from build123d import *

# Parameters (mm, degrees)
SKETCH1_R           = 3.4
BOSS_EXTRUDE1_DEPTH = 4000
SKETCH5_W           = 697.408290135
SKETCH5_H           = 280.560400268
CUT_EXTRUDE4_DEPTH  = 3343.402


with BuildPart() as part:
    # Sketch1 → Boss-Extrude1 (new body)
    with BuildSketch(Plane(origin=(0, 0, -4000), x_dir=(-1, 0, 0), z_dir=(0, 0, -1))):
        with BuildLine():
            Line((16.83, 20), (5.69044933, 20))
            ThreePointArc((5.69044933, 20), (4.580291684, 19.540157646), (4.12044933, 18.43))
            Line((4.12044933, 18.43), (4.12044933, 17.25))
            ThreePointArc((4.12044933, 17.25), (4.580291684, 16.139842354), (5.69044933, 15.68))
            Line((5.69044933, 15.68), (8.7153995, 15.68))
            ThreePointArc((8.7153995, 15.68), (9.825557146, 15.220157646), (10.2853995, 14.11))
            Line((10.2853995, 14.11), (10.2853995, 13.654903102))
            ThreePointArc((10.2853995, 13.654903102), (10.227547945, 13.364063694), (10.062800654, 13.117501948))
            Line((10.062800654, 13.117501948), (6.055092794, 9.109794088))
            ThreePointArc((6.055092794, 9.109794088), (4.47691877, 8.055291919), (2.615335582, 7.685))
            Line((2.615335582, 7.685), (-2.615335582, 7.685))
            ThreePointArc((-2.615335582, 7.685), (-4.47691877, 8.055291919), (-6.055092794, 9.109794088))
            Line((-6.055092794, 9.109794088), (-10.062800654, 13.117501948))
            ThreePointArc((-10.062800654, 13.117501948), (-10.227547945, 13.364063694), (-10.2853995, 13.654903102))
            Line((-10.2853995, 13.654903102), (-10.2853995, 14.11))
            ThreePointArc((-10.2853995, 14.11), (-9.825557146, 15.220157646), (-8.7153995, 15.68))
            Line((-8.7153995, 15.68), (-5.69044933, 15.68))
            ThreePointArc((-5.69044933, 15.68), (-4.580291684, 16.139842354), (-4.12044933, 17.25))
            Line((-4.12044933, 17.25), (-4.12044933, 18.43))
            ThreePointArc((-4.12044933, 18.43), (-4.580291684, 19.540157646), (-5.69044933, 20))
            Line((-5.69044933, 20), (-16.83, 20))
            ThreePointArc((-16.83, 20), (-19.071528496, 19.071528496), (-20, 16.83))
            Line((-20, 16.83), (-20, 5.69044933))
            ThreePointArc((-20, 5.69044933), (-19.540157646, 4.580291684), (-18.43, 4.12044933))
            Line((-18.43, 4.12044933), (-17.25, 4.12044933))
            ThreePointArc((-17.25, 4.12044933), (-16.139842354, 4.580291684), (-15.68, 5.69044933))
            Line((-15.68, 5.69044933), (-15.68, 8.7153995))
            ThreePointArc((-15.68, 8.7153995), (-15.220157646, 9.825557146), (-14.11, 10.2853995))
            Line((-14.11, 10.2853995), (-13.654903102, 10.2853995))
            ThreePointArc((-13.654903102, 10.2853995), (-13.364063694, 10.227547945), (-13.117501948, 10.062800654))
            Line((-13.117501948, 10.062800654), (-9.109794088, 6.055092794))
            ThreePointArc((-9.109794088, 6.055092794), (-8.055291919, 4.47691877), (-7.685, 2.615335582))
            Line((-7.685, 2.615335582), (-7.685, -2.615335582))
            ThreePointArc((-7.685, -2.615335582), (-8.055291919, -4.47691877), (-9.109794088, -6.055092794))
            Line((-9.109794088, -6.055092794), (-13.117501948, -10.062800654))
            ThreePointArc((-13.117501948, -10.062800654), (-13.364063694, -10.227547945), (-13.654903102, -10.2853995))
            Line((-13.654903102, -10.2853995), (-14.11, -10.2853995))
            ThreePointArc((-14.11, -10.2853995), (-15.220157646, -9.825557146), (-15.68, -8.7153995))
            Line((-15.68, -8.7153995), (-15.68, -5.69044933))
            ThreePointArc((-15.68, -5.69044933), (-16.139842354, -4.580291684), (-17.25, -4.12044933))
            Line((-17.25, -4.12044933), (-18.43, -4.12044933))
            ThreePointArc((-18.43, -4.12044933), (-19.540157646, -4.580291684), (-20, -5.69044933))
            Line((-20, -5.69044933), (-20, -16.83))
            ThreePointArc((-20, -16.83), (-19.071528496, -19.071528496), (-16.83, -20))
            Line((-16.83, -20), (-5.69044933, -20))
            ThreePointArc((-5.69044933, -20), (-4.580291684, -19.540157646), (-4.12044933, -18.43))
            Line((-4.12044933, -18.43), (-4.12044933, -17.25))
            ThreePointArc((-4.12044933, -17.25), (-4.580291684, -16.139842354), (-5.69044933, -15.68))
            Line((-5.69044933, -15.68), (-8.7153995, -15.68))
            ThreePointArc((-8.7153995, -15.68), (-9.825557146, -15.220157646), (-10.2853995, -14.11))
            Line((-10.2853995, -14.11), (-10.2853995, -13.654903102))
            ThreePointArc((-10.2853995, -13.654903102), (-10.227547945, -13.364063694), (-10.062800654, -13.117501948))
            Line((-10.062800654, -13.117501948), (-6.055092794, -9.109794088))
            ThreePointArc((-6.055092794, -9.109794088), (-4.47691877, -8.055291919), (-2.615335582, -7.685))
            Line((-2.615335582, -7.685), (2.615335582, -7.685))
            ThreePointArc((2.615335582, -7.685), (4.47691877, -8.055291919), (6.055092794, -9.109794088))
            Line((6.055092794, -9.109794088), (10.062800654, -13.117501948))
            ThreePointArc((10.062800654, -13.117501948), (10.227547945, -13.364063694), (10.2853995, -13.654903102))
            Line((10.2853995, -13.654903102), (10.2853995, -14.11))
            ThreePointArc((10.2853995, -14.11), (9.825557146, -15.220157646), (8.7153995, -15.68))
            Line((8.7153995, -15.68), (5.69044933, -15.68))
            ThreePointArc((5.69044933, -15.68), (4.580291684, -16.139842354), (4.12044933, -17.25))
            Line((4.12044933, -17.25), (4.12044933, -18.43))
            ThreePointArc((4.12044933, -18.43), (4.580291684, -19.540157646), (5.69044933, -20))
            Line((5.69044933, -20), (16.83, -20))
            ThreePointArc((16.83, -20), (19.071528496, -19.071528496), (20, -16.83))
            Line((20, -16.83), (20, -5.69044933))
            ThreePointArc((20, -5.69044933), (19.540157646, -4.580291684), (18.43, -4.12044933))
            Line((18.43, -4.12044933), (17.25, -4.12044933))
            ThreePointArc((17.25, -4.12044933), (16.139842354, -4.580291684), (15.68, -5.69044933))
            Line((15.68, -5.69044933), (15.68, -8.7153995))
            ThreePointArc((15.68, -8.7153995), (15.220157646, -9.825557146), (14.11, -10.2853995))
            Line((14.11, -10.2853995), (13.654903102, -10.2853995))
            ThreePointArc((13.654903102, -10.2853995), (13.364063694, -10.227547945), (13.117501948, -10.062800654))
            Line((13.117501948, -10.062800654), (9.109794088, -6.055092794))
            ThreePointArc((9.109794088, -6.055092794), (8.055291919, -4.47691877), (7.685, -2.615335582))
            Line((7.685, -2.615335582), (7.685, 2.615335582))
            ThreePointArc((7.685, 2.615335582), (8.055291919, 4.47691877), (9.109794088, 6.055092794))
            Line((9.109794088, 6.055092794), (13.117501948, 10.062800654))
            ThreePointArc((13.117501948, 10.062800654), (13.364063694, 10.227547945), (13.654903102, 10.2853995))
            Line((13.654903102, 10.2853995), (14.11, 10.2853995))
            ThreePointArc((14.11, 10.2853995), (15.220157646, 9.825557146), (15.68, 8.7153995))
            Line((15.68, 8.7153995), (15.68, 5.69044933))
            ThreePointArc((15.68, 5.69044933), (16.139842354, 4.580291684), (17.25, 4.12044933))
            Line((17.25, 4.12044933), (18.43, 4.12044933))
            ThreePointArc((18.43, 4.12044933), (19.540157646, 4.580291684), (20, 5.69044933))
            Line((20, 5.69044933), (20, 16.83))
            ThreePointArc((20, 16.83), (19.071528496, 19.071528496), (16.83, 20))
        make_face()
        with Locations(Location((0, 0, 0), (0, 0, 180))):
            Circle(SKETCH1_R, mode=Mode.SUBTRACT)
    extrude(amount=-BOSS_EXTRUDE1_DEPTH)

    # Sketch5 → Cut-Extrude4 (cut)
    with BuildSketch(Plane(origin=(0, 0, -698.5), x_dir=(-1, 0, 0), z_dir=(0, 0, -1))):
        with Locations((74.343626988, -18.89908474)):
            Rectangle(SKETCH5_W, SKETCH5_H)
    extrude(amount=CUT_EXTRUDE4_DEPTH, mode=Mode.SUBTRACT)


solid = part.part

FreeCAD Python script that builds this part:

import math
import FreeCAD as App
import Part
import Sketcher
Q = App.Units.Quantity

doc = App.newDocument("Part")
body = doc.addObject("PartDesign::Body", "Body")

sketch1 = body.newObject("Sketcher::SketchObject", "Sketch")
sketch1.AttachmentSupport = (doc.getObject("XY_Plane"), [""])
sketch1.MapMode = "FlatFace"
sketch1.AttachmentOffset = App.Placement(App.Vector(0, 0, -4000), App.Rotation())
sketch1.addGeometry([
    Part.LineSegment(App.Vector(-16.83, 20, 0), App.Vector(-5.69, 20, 0)),
    Part.ArcOfCircle(Part.Circle(App.Vector(-5.69, 18.43, 0), App.Vector(0, 0, 1), 1.57), math.radians(0), math.radians(90)),
    Part.LineSegment(App.Vector(-4.12, 18.43, 0), App.Vector(-4.12, 17.25, 0)),
    Part.ArcOfCircle(Part.Circle(App.Vector(-5.69, 17.25, 0), App.Vector(0, 0, 1), 1.57), math.radians(-90), math.radians(0)),
    Part.LineSegment(App.Vector(-5.69, 15.68, 0), App.Vector(-8.72, 15.68, 0)),
    Part.ArcOfCircle(Part.Circle(App.Vector(-8.72, 14.11, 0), App.Vector(0, 0, 1), 1.57), math.radians(90), math.radians(180)),
    Part.LineSegment(App.Vector(-10.29, 14.11, 0), App.Vector(-10.29, 13.65, 0)),
    Part.ArcOfCircle(Part.Circle(App.Vector(-9.53, 13.65, 0), App.Vector(0, 0, 1), 0.76), math.radians(180), math.radians(225)),
    Part.LineSegment(App.Vector(-10.06, 13.12, 0), App.Vector(-6.06, 9.11, 0)),
    Part.ArcOfCircle(Part.Circle(App.Vector(-2.62, 12.55, 0), App.Vector(0, 0, 1), 4.86), math.radians(-135), math.radians(-90)),
    Part.LineSegment(App.Vector(-2.62, 7.68, 0), App.Vector(2.62, 7.68, 0)),
    Part.ArcOfCircle(Part.Circle(App.Vector(2.62, 12.55, 0), App.Vector(0, 0, 1), 4.86), math.radians(-90), math.radians(-45)),
    Part.LineSegment(App.Vector(6.06, 9.11, 0), App.Vector(10.06, 13.12, 0)),
    Part.ArcOfCircle(Part.Circle(App.Vector(9.53, 13.65, 0), App.Vector(0, 0, 1), 0.76), math.radians(-45), math.radians(0)),
    Part.LineSegment(App.Vector(10.29, 13.65, 0), App.Vector(10.29, 14.11, 0)),
    Part.ArcOfCircle(Part.Circle(App.Vector(8.72, 14.11, 0), App.Vector(0, 0, 1), 1.57), math.radians(0), math.radians(90)),
    Part.LineSegment(App.Vector(8.72, 15.68, 0), App.Vector(5.69, 15.68, 0)),
    Part.ArcOfCircle(Part.Circle(App.Vector(5.69, 17.25, 0), App.Vector(0, 0, 1), 1.57), math.radians(-180), math.radians(-90)),
    Part.LineSegment(App.Vector(4.12, 17.25, 0), App.Vector(4.12, 18.43, 0)),
    Part.ArcOfCircle(Part.Circle(App.Vector(5.69, 18.43, 0), App.Vector(0, 0, 1), 1.57), math.radians(90), math.radians(180)),
    Part.LineSegment(App.Vector(5.69, 20, 0), App.Vector(16.83, 20, 0)),
    Part.ArcOfCircle(Part.Circle(App.Vector(16.83, 16.83, 0), App.Vector(0, 0, 1), 3.17), math.radians(0), math.radians(90)),
    Part.LineSegment(App.Vector(20, 16.83, 0), App.Vector(20, 5.69, 0)),
    Part.ArcOfCircle(Part.Circle(App.Vector(18.43, 5.69, 0), App.Vector(0, 0, 1), 1.57), math.radians(-90), math.radians(0)),
    Part.LineSegment(App.Vector(18.43, 4.12, 0), App.Vector(17.25, 4.12, 0)),
    Part.ArcOfCircle(Part.Circle(App.Vector(17.25, 5.69, 0), App.Vector(0, 0, 1), 1.57), math.radians(-180), math.radians(-90)),
    Part.LineSegment(App.Vector(15.68, 5.69, 0), App.Vector(15.68, 8.72, 0)),
    Part.ArcOfCircle(Part.Circle(App.Vector(14.11, 8.72, 0), App.Vector(0, 0, 1), 1.57), math.radians(0), math.radians(90)),
    Part.LineSegment(App.Vector(14.11, 10.29, 0), App.Vector(13.65, 10.29, 0)),
    Part.ArcOfCircle(Part.Circle(App.Vector(13.65, 9.53, 0), App.Vector(0, 0, 1), 0.76), math.radians(90), math.radians(135)),
    Part.LineSegment(App.Vector(13.12, 10.06, 0), App.Vector(9.11, 6.06, 0)),
    Part.ArcOfCircle(Part.Circle(App.Vector(12.55, 2.62, 0), App.Vector(0, 0, 1), 4.86), math.radians(135), math.radians(180)),
    Part.LineSegment(App.Vector(7.68, 2.62, 0), App.Vector(7.68, -2.62, 0)),
    Part.ArcOfCircle(Part.Circle(App.Vector(12.55, -2.62, 0), App.Vector(0, 0, 1), 4.86), math.radians(-180), math.radians(-135)),
    Part.LineSegment(App.Vector(9.11, -6.06, 0), App.Vector(13.12, -10.06, 0)),
    Part.ArcOfCircle(Part.Circle(App.Vector(13.65, -9.53, 0), App.Vector(0, 0, 1), 0.76), math.radians(-135), math.radians(-90)),
    Part.LineSegment(App.Vector(13.65, -10.29, 0), App.Vector(14.11, -10.29, 0)),
    Part.ArcOfCircle(Part.Circle(App.Vector(14.11, -8.72, 0), App.Vector(0, 0, 1), 1.57), math.radians(-90), math.radians(0)),
    Part.LineSegment(App.Vector(15.68, -8.72, 0), App.Vector(15.68, -5.69, 0)),
    Part.ArcOfCircle(Part.Circle(App.Vector(17.25, -5.69, 0), App.Vector(0, 0, 1), 1.57), math.radians(90), math.radians(180)),
    Part.LineSegment(App.Vector(17.25, -4.12, 0), App.Vector(18.43, -4.12, 0)),
    Part.ArcOfCircle(Part.Circle(App.Vector(18.43, -5.69, 0), App.Vector(0, 0, 1), 1.57), math.radians(0), math.radians(90)),
    Part.LineSegment(App.Vector(20, -5.69, 0), App.Vector(20, -16.83, 0)),
    Part.ArcOfCircle(Part.Circle(App.Vector(16.83, -16.83, 0), App.Vector(0, 0, 1), 3.17), math.radians(-90), math.radians(0)),
    Part.LineSegment(App.Vector(16.83, -20, 0), App.Vector(5.69, -20, 0)),
    Part.ArcOfCircle(Part.Circle(App.Vector(5.69, -18.43, 0), App.Vector(0, 0, 1), 1.57), math.radians(-180), math.radians(-90)),
    Part.LineSegment(App.Vector(4.12, -18.43, 0), App.Vector(4.12, -17.25, 0)),
    Part.ArcOfCircle(Part.Circle(App.Vector(5.69, -17.25, 0), App.Vector(0, 0, 1), 1.57), math.radians(90), math.radians(180)),
    Part.LineSegment(App.Vector(5.69, -15.68, 0), App.Vector(8.72, -15.68, 0)),
    Part.ArcOfCircle(Part.Circle(App.Vector(8.72, -14.11, 0), App.Vector(0, 0, 1), 1.57), math.radians(-90), math.radians(0)),
    Part.LineSegment(App.Vector(10.29, -14.11, 0), App.Vector(10.29, -13.65, 0)),
    Part.ArcOfCircle(Part.Circle(App.Vector(9.53, -13.65, 0), App.Vector(0, 0, 1), 0.76), math.radians(0), math.radians(45)),
    Part.LineSegment(App.Vector(10.06, -13.12, 0), App.Vector(6.06, -9.11, 0)),
    Part.ArcOfCircle(Part.Circle(App.Vector(2.62, -12.55, 0), App.Vector(0, 0, 1), 4.86), math.radians(45), math.radians(90)),
    Part.LineSegment(App.Vector(2.62, -7.68, 0), App.Vector(-2.62, -7.68, 0)),
    Part.ArcOfCircle(Part.Circle(App.Vector(-2.62, -12.55, 0), App.Vector(0, 0, 1), 4.86), math.radians(90), math.radians(135)),
    Part.LineSegment(App.Vector(-6.06, -9.11, 0), App.Vector(-10.06, -13.12, 0)),
    Part.ArcOfCircle(Part.Circle(App.Vector(-9.53, -13.65, 0), App.Vector(0, 0, 1), 0.76), math.radians(135), math.radians(180)),
    Part.LineSegment(App.Vector(-10.29, -13.65, 0), App.Vector(-10.29, -14.11, 0)),
    Part.ArcOfCircle(Part.Circle(App.Vector(-8.72, -14.11, 0), App.Vector(0, 0, 1), 1.57), math.radians(-180), math.radians(-90)),
    Part.LineSegment(App.Vector(-8.72, -15.68, 0), App.Vector(-5.69, -15.68, 0)),
    Part.ArcOfCircle(Part.Circle(App.Vector(-5.69, -17.25, 0), App.Vector(0, 0, 1), 1.57), math.radians(0), math.radians(90)),
    Part.LineSegment(App.Vector(-4.12, -17.25, 0), App.Vector(-4.12, -18.43, 0)),
    Part.ArcOfCircle(Part.Circle(App.Vector(-5.69, -18.43, 0), App.Vector(0, 0, 1), 1.57), math.radians(-90), math.radians(0)),
    Part.LineSegment(App.Vector(-5.69, -20, 0), App.Vector(-16.83, -20, 0)),
    Part.ArcOfCircle(Part.Circle(App.Vector(-16.83, -16.83, 0), App.Vector(0, 0, 1), 3.17), math.radians(-180), math.radians(-90)),
    Part.LineSegment(App.Vector(-20, -16.83, 0), App.Vector(-20, -5.69, 0)),
    Part.ArcOfCircle(Part.Circle(App.Vector(-18.43, -5.69, 0), App.Vector(0, 0, 1), 1.57), math.radians(90), math.radians(180)),
    Part.LineSegment(App.Vector(-18.43, -4.12, 0), App.Vector(-17.25, -4.12, 0)),
    Part.ArcOfCircle(Part.Circle(App.Vector(-17.25, -5.69, 0), App.Vector(0, 0, 1), 1.57), math.radians(0), math.radians(90)),
    Part.LineSegment(App.Vector(-15.68, -5.69, 0), App.Vector(-15.68, -8.72, 0)),
    Part.ArcOfCircle(Part.Circle(App.Vector(-14.11, -8.72, 0), App.Vector(0, 0, 1), 1.57), math.radians(-180), math.radians(-90)),
    Part.LineSegment(App.Vector(-14.11, -10.29, 0), App.Vector(-13.65, -10.29, 0)),
    Part.ArcOfCircle(Part.Circle(App.Vector(-13.65, -9.53, 0), App.Vector(0, 0, 1), 0.76), math.radians(-90), math.radians(-45)),
    Part.LineSegment(App.Vector(-13.12, -10.06, 0), App.Vector(-9.11, -6.06, 0)),
    Part.ArcOfCircle(Part.Circle(App.Vector(-12.55, -2.62, 0), App.Vector(0, 0, 1), 4.86), math.radians(-45), math.radians(0)),
    Part.LineSegment(App.Vector(-7.68, -2.62, 0), App.Vector(-7.68, 2.62, 0)),
    Part.ArcOfCircle(Part.Circle(App.Vector(-12.55, 2.62, 0), App.Vector(0, 0, 1), 4.86), math.radians(0), math.radians(45)),
    Part.LineSegment(App.Vector(-9.11, 6.06, 0), App.Vector(-13.12, 10.06, 0)),
    Part.ArcOfCircle(Part.Circle(App.Vector(-13.65, 9.53, 0), App.Vector(0, 0, 1), 0.76), math.radians(45), math.radians(90)),
    Part.LineSegment(App.Vector(-13.65, 10.29, 0), App.Vector(-14.11, 10.29, 0)),
    Part.ArcOfCircle(Part.Circle(App.Vector(-14.11, 8.72, 0), App.Vector(0, 0, 1), 1.57), math.radians(90), math.radians(180)),
    Part.LineSegment(App.Vector(-15.68, 8.72, 0), App.Vector(-15.68, 5.69, 0)),
    Part.ArcOfCircle(Part.Circle(App.Vector(-17.25, 5.69, 0), App.Vector(0, 0, 1), 1.57), math.radians(-90), math.radians(0)),
    Part.LineSegment(App.Vector(-17.25, 4.12, 0), App.Vector(-18.43, 4.12, 0)),
    Part.ArcOfCircle(Part.Circle(App.Vector(-18.43, 5.69, 0), App.Vector(0, 0, 1), 1.57), math.radians(-180), math.radians(-90)),
    Part.LineSegment(App.Vector(-20, 5.69, 0), App.Vector(-20, 16.83, 0)),
    Part.ArcOfCircle(Part.Circle(App.Vector(-16.83, 16.83, 0), App.Vector(0, 0, 1), 3.17), math.radians(90), math.radians(180)),
    Part.Circle(App.Vector(0, 0, 0), App.Vector(0, 0, 1), 3.4),
], False)
sketch1.addConstraint([
    Sketcher.Constraint("Tangent", 0, 2, 1, 2),
    Sketcher.Constraint("Tangent", 1, 1, 2, 1),
    Sketcher.Constraint("Tangent", 2, 2, 3, 2),
    Sketcher.Constraint("Tangent", 3, 1, 4, 1),
    Sketcher.Constraint("Tangent", 4, 2, 5, 1),
    Sketcher.Constraint("Tangent", 5, 2, 6, 1),
    Sketcher.Constraint("Tangent", 6, 2, 7, 1),
    Sketcher.Constraint("Tangent", 7, 2, 8, 1),
    Sketcher.Constraint("Tangent", 8, 2, 9, 1),
    Sketcher.Constraint("Tangent", 9, 2, 10, 1),
    Sketcher.Constraint("Tangent", 10, 2, 11, 1),
    Sketcher.Constraint("Tangent", 11, 2, 12, 1),
    Sketcher.Constraint("Tangent", 12, 2, 13, 1),
    Sketcher.Constraint("Tangent", 13, 2, 14, 1),
    Sketcher.Constraint("Tangent", 14, 2, 15, 1),
    Sketcher.Constraint("Tangent", 15, 2, 16, 1),
    Sketcher.Constraint("Tangent", 16, 2, 17, 2),
    Sketcher.Constraint("Tangent", 17, 1, 18, 1),
    Sketcher.Constraint("Tangent", 18, 2, 19, 2),
    Sketcher.Constraint("Tangent", 19, 1, 20, 1),
    Sketcher.Constraint("Tangent", 20, 2, 21, 2),
    Sketcher.Constraint("Tangent", 21, 1, 22, 1),
    Sketcher.Constraint("Tangent", 22, 2, 23, 2),
    Sketcher.Constraint("Tangent", 23, 1, 24, 1),
    Sketcher.Constraint("Tangent", 24, 2, 25, 2),
    Sketcher.Constraint("Tangent", 25, 1, 26, 1),
    Sketcher.Constraint("Tangent", 26, 2, 27, 1),
    Sketcher.Constraint("Tangent", 27, 2, 28, 1),
    Sketcher.Constraint("Tangent", 28, 2, 29, 1),
    Sketcher.Constraint("Tangent", 29, 2, 30, 1),
    Sketcher.Constraint("Tangent", 30, 2, 31, 1),
    Sketcher.Constraint("Tangent", 31, 2, 32, 1),
    Sketcher.Constraint("Tangent", 32, 2, 33, 1),
    Sketcher.Constraint("Tangent", 33, 2, 34, 1),
    Sketcher.Constraint("Tangent", 34, 2, 35, 1),
    Sketcher.Constraint("Tangent", 35, 2, 36, 1),
    Sketcher.Constraint("Tangent", 36, 2, 37, 1),
    Sketcher.Constraint("Tangent", 37, 2, 38, 1),
    Sketcher.Constraint("Tangent", 38, 2, 39, 2),
    Sketcher.Constraint("Tangent", 39, 1, 40, 1),
    Sketcher.Constraint("Tangent", 40, 2, 41, 2),
    Sketcher.Constraint("Tangent", 41, 1, 42, 1),
    Sketcher.Constraint("Tangent", 42, 2, 43, 2),
    Sketcher.Constraint("Tangent", 43, 1, 44, 1),
    Sketcher.Constraint("Tangent", 44, 2, 45, 2),
    Sketcher.Constraint("Tangent", 45, 1, 46, 1),
    Sketcher.Constraint("Tangent", 46, 2, 47, 2),
    Sketcher.Constraint("Tangent", 47, 1, 48, 1),
    Sketcher.Constraint("Tangent", 48, 2, 49, 1),
    Sketcher.Constraint("Tangent", 49, 2, 50, 1),
    Sketcher.Constraint("Tangent", 50, 2, 51, 1),
    Sketcher.Constraint("Tangent", 51, 2, 52, 1),
    Sketcher.Constraint("Tangent", 52, 2, 53, 1),
    Sketcher.Constraint("Tangent", 53, 2, 54, 1),
    Sketcher.Constraint("Tangent", 54, 2, 55, 1),
    Sketcher.Constraint("Tangent", 55, 2, 56, 1),
    Sketcher.Constraint("Tangent", 56, 2, 57, 1),
    Sketcher.Constraint("Tangent", 57, 2, 58, 1),
    Sketcher.Constraint("Tangent", 58, 2, 59, 1),
    Sketcher.Constraint("Tangent", 59, 2, 60, 1),
    Sketcher.Constraint("Tangent", 60, 2, 61, 2),
    Sketcher.Constraint("Tangent", 61, 1, 62, 1),
    Sketcher.Constraint("Tangent", 62, 2, 63, 2),
    Sketcher.Constraint("Tangent", 63, 1, 64, 1),
    Sketcher.Constraint("Tangent", 64, 2, 65, 2),
    Sketcher.Constraint("Tangent", 65, 1, 66, 1),
    Sketcher.Constraint("Tangent", 66, 2, 67, 2),
    Sketcher.Constraint("Tangent", 67, 1, 68, 1),
    Sketcher.Constraint("Tangent", 68, 2, 69, 2),
    Sketcher.Constraint("Tangent", 69, 1, 70, 1),
    Sketcher.Constraint("Tangent", 70, 2, 71, 1),
    Sketcher.Constraint("Tangent", 71, 2, 72, 1),
    Sketcher.Constraint("Tangent", 72, 2, 73, 1),
    Sketcher.Constraint("Tangent", 73, 2, 74, 1),
    Sketcher.Constraint("Tangent", 74, 2, 75, 1),
    Sketcher.Constraint("Tangent", 75, 2, 76, 1),
    Sketcher.Constraint("Tangent", 76, 2, 77, 1),
    Sketcher.Constraint("Tangent", 77, 2, 78, 1),
    Sketcher.Constraint("Tangent", 78, 2, 79, 1),
    Sketcher.Constraint("Tangent", 79, 2, 80, 1),
    Sketcher.Constraint("Tangent", 80, 2, 81, 1),
    Sketcher.Constraint("Tangent", 81, 2, 82, 1),
    Sketcher.Constraint("Tangent", 82, 2, 83, 2),
    Sketcher.Constraint("Tangent", 83, 1, 84, 1),
    Sketcher.Constraint("Tangent", 84, 2, 85, 2),
    Sketcher.Constraint("Tangent", 85, 1, 86, 1),
    Sketcher.Constraint("Tangent", 86, 2, 87, 2),
    Sketcher.Constraint("Tangent", 87, 1, 0, 1),
    Sketcher.Constraint("Horizontal", 0),
    Sketcher.Constraint("Vertical", 2),
    Sketcher.Constraint("Horizontal", 4),
    Sketcher.Constraint("Vertical", 6),
    Sketcher.Constraint("Horizontal", 10),
    Sketcher.Constraint("Vertical", 14),
    Sketcher.Constraint("Horizontal", 16),
    Sketcher.Constraint("Vertical", 18),
    Sketcher.Constraint("Horizontal", 20),
    Sketcher.Constraint("Vertical", 22),
    Sketcher.Constraint("Horizontal", 24),
    Sketcher.Constraint("Vertical", 26),
    Sketcher.Constraint("Horizontal", 28),
    Sketcher.Constraint("Vertical", 32),
    Sketcher.Constraint("Horizontal", 36),
    Sketcher.Constraint("Vertical", 38),
    Sketcher.Constraint("Horizontal", 40),
    Sketcher.Constraint("Vertical", 42),
    Sketcher.Constraint("Horizontal", 44),
    Sketcher.Constraint("Vertical", 46),
    Sketcher.Constraint("Horizontal", 48),
    Sketcher.Constraint("Vertical", 50),
    Sketcher.Constraint("Horizontal", 54),
    Sketcher.Constraint("Vertical", 58),
    Sketcher.Constraint("Horizontal", 60),
    Sketcher.Constraint("Vertical", 62),
    Sketcher.Constraint("Horizontal", 64),
    Sketcher.Constraint("Vertical", 66),
    Sketcher.Constraint("Horizontal", 68),
    Sketcher.Constraint("Vertical", 70),
    Sketcher.Constraint("Horizontal", 72),
    Sketcher.Constraint("Vertical", 76),
    Sketcher.Constraint("Horizontal", 80),
    Sketcher.Constraint("Vertical", 82),
    Sketcher.Constraint("Horizontal", 84),
    Sketcher.Constraint("Vertical", 86),
    Sketcher.Constraint("Coincident", 88, 3, -1, 1),
    Sketcher.Constraint("Equal", 1, 3),
    Sketcher.Constraint("Equal", 3, 5),
    Sketcher.Constraint("Equal", 9, 11),
    Sketcher.Constraint("Equal", 7, 13),
    Sketcher.Constraint("Equal", 5, 15),
    Sketcher.Constraint("Equal", 15, 17),
    Sketcher.Constraint("Equal", 17, 19),
    Sketcher.Constraint("Equal", 19, 23),
    Sketcher.Constraint("Equal", 23, 25),
    Sketcher.Constraint("Equal", 25, 27),
    Sketcher.Constraint("Equal", 13, 29),
    Sketcher.Constraint("Equal", 11, 31),
    Sketcher.Constraint("Equal", 31, 33),
    Sketcher.Constraint("Equal", 29, 35),
    Sketcher.Constraint("Equal", 27, 37),
    Sketcher.Constraint("Equal", 37, 39),
    Sketcher.Constraint("Equal", 39, 41),
    Sketcher.Constraint("Equal", 21, 43),
    Sketcher.Constraint("Equal", 41, 45),
    Sketcher.Constraint("Equal", 45, 47),
    Sketcher.Constraint("Equal", 47, 49),
    Sketcher.Constraint("Equal", 35, 51),
    Sketcher.Constraint("Equal", 33, 53),
    Sketcher.Constraint("Equal", 53, 55),
    Sketcher.Constraint("Equal", 51, 57),
    Sketcher.Constraint("Equal", 49, 59),
    Sketcher.Constraint("Equal", 59, 61),
    Sketcher.Constraint("Equal", 61, 63),
    Sketcher.Constraint("Equal", 43, 65),
    Sketcher.Constraint("Equal", 63, 67),
    Sketcher.Constraint("Equal", 67, 69),
    Sketcher.Constraint("Equal", 69, 71),
    Sketcher.Constraint("Equal", 57, 73),
    Sketcher.Constraint("Equal", 55, 75),
    Sketcher.Constraint("Equal", 75, 77),
    Sketcher.Constraint("Equal", 73, 79),
    Sketcher.Constraint("Equal", 71, 81),
    Sketcher.Constraint("Equal", 81, 83),
    Sketcher.Constraint("Equal", 83, 85),
    Sketcher.Constraint("Equal", 65, 87),
    Sketcher.Constraint("Symmetric", 1, 3, 45, 3, -1, 1),
    Sketcher.Constraint("Symmetric", 5, 3, 49, 3, -1, 1),
    Sketcher.Constraint("Symmetric", 9, 3, 53, 3, -1, 1),
    Sketcher.Constraint("Symmetric", 13, 3, 57, 3, -1, 1),
    Sketcher.Constraint("Symmetric", 17, 3, 61, 3, -1, 1),
    Sketcher.Constraint("Symmetric", 21, 3, 65, 3, -1, 1),
    Sketcher.Constraint("Symmetric", 25, 3, 69, 3, -1, 1),
    Sketcher.Constraint("Symmetric", 29, 3, 73, 3, -1, 1),
    Sketcher.Constraint("Symmetric", 31, 3, 75, 3, -1, 1),
    Sketcher.Constraint("Symmetric", 35, 3, 79, 3, -1, 1),
    Sketcher.Constraint("Symmetric", 39, 3, 83, 3, -1, 1),
    Sketcher.Constraint("Symmetric", 7, 3, 13, 3, -2),
    Sketcher.Constraint("Symmetric", 3, 3, 17, 3, -2),
    Sketcher.Constraint("Symmetric", 43, 3, 65, 3, -2),
    Sketcher.Constraint("Symmetric", 39, 3, 69, 3, -2),
    Sketcher.Constraint("Symmetric", 35, 3, 73, 3, -2),
    Sketcher.Constraint("Symmetric", 52, 2, 55, 2, -2),
    Sketcher.Constraint("Perpendicular", 8, 12),
    Sketcher.Constraint("Parallel", 12, 30),
    Sketcher.Constraint("Perpendicular", 30, 34),
    Sketcher.Constraint("Perpendicular", 52, 56),
    Sketcher.Constraint("Perpendicular", 74, 78),
    Sketcher.Constraint("Vertical", 67, 3, 85, 3),
    Sketcher.Constraint("Equal", 84, 2),
    Sketcher.Constraint("Equal", 80, 6),
    Sketcher.Constraint("Equal", 64, 22),
    Sketcher.Constraint("Equal", 60, 26),
    Sketcher.Constraint("Equal", 54, 32),
    Sketcher.Constraint("Equal", 12, 30),
    Sketcher.Constraint("Diameter", 88, Q("6.8 mm")),
    Sketcher.Constraint("Radius", 1, Q("1.57 mm")),
    Sketcher.Constraint("Radius", 7, Q("0.76 mm")),
    Sketcher.Constraint("Radius", 21, Q("3.17 mm")),
    Sketcher.Constraint("DistanceY", -1, 1, 0, 2, Q("20 mm")),
    Sketcher.Constraint("DistanceX", 24, 2, 24, 1, Q("1.18 mm")),
    Sketcher.Constraint("Radius", 9, Q("4.864551 mm")),
    Sketcher.Constraint("DistanceY", -1, 1, 9, 2, Q("7.685 mm")),
    Sketcher.Constraint("DistanceX", 0, 1, 0, 2, Q("11.139551 mm")),
    Sketcher.Constraint("DistanceX", 4, 2, 4, 1, Q("3.02495 mm")),
    Sketcher.Constraint("DistanceX", 10, 1, 10, 2, Q("5.230671 mm")),
])
pad1 = body.newObject("PartDesign::Pad", "Pad")
pad1.Profile = sketch1
pad1.Length = 4000

sketch2 = body.newObject("Sketcher::SketchObject", "Sketch001")
sketch2.AttachmentSupport = (doc.getObject("XY_Plane"), [""])
sketch2.MapMode = "FlatFace"
sketch2.AttachmentOffset = App.Placement(App.Vector(0, 0, -698.5), App.Rotation())
sketch2.addGeometry([
    Part.LineSegment(App.Vector(274, 121, 0), App.Vector(274, -159, 0)),
    Part.LineSegment(App.Vector(274, -159, 0), App.Vector(-423, -159, 0)),
    Part.LineSegment(App.Vector(-423, -159, 0), App.Vector(-423, 121, 0)),
    Part.LineSegment(App.Vector(-423, 121, 0), App.Vector(274, 121, 0)),
], False)
sketch2.addConstraint([
    Sketcher.Constraint("Coincident", 0, 2, 1, 1),
    Sketcher.Constraint("Coincident", 1, 2, 2, 1),
    Sketcher.Constraint("Coincident", 2, 2, 3, 1),
    Sketcher.Constraint("Coincident", 3, 2, 0, 1),
    Sketcher.Constraint("Vertical", 0),
    Sketcher.Constraint("Horizontal", 1),
    Sketcher.Constraint("Vertical", 2),
    Sketcher.Constraint("Horizontal", 3),
    Sketcher.Constraint("DistanceY", 0, 2, 0, 1, Q("280.5604 mm")),
    Sketcher.Constraint("DistanceX", 1, 2, 1, 1, Q("697.40829 mm")),
    Sketcher.Constraint("DistanceX", -1, 1, 0, 2, Q("274.360518 mm")),
    Sketcher.Constraint("DistanceY", 0, 2, -1, 1, Q("159.179285 mm")),
])
pocket1 = body.newObject("PartDesign::Pocket", "Pocket")
pocket1.Profile = sketch2
pocket1.Length = 3343.402

doc.recompute()
